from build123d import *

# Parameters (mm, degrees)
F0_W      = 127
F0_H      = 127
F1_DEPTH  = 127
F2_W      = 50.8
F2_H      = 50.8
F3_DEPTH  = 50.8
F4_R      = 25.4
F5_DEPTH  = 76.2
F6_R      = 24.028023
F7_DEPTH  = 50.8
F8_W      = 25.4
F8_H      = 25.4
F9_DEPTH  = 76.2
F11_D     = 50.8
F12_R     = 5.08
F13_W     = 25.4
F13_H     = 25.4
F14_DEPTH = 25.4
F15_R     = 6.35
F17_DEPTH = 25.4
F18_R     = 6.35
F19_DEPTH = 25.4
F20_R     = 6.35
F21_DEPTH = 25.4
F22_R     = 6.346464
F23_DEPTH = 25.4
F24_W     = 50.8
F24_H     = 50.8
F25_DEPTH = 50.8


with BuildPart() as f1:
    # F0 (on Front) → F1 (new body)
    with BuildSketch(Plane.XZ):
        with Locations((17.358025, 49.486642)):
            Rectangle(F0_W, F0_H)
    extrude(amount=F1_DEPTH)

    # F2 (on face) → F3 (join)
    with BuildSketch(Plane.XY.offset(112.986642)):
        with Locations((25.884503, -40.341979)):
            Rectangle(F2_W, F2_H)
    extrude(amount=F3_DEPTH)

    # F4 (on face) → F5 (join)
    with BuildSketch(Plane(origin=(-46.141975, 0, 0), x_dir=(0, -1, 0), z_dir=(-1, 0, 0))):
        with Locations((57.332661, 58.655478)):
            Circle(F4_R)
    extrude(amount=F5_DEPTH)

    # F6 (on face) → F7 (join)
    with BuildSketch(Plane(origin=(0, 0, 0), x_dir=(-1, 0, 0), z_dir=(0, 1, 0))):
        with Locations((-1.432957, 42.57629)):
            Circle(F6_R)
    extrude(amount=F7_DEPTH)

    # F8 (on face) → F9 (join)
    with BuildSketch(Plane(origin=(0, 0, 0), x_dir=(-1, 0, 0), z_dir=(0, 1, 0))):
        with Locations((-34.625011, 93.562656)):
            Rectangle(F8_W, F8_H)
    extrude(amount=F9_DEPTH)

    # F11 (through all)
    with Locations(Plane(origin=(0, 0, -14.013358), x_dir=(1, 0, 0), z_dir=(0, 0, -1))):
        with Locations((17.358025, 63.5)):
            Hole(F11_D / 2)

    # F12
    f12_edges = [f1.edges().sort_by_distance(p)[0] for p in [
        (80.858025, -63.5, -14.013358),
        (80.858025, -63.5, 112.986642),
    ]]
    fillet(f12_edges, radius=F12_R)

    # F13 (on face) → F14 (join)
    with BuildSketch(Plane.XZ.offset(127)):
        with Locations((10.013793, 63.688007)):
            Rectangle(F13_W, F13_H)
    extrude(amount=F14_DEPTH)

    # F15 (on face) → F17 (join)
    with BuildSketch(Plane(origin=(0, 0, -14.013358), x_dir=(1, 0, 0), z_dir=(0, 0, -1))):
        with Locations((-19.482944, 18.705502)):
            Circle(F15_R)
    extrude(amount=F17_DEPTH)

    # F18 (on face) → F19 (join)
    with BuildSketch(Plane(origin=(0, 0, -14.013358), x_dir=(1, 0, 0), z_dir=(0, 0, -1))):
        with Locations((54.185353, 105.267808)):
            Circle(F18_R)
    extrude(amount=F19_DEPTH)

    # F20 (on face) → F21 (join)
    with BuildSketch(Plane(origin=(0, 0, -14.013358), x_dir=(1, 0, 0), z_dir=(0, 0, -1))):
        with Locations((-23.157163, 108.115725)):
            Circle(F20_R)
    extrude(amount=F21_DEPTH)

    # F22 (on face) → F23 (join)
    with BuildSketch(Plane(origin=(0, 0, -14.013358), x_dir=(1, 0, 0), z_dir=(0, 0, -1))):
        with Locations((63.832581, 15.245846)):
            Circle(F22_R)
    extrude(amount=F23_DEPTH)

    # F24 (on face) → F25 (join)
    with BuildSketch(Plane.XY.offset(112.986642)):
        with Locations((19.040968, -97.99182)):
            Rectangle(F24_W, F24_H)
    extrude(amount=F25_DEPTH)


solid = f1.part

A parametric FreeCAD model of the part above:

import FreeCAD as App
import Part
import Sketcher

V = App.Vector
Q = App.Units.Quantity


def edges_at(feature, points):
    """Names of the edges that pass closest to the given points."""
    edges = feature.Shape.Edges
    near = lambda p: min(range(len(edges)), key=lambda i: edges[i].distToShape(Part.Vertex(*p))[0])
    return sorted({f"Edge{near(p) + 1}" for p in points})


def add_polygon(sketch, points):
    """Adds a closed chain of lines whose ends are joined by coincident constraints."""
    first, n = sketch.GeometryCount, len(points)
    for a, b in zip(points, points[1:] + points[:1]):
        sketch.addGeometry(Part.LineSegment(App.Vector(*a, 0), App.Vector(*b, 0)), False)
    for i in range(n):
        sketch.addConstraint(Sketcher.Constraint("Coincident", first + i, 2, first + (i + 1) % n, 1))

doc = App.newDocument("Part")
params = doc.addObject("Spreadsheet::Sheet", "Params")
for row, (alias, value) in enumerate([
    ("sketch1_width", "5 in"),
    ("pad1_length", "5 in"),
    ("sketch2_width", "2 in"),
    ("pad2_length", "2 in"),
    ("sketch3_diameter", "2 in"),
    ("pad3_length", "3 in"),
    ("pad4_length", "2 in"),
    ("sketch5_width", "1 in"),
    ("pad5_length", "3 in"),
    ("sketch6_diameter", "2 in"),
    ("hole_diameter", "2 in"),
    ("fillet_radius", "0.2 in"),
    ("sketch7_width", "1 in"),
    ("pad6_length", "1 in"),
    ("sketch8_diameter", "0.5 in"),
    ("pad7_length", "1 in"),
    ("sketch9_diameter", "0.5 in"),
    ("pad8_length", "1 in"),
    ("sketch10_diameter", "0.5 in"),
    ("pad9_length", "1 in"),
    ("pad10_length", "1 in"),
    ("sketch12_width", "2 in"),
    ("pad11_length", "2 in"),
], start=1):
    params.set(f"A{row}", alias)
    params.set(f"B{row}", "=" + value)
    params.setAlias(f"B{row}", alias)

body = doc.addObject("PartDesign::Body", "Body")

sketch1 = body.newObject("Sketcher::SketchObject", "Sketch")
sketch1.AttachmentSupport = (doc.getObject("XZ_Plane"), [""])
sketch1.MapMode = "FlatFace"
add_polygon(sketch1, [(-46, 113), (-46, -14), (81, -14), (81, 113)])
sketch1.addConstraint(Sketcher.Constraint("Vertical", 0))
sketch1.addConstraint(Sketcher.Constraint("Horizontal", 1))
sketch1.addConstraint(Sketcher.Constraint("Vertical", 2))
sketch1.addConstraint(Sketcher.Constraint("Horizontal", 3))
sketch1.addConstraint(Sketcher.Constraint("Equal", 3, 0))
sketch1.addConstraint(Sketcher.Constraint("DistanceX", 1, 1, 1, 2, Q("5 in")))
sketch1.addConstraint(Sketcher.Constraint("DistanceX", 0, 2, -1, 1, 46.141975))
sketch1.addConstraint(Sketcher.Constraint("DistanceY", 0, 2, -1, 1, 14.013358))
sketch1.setExpression("Constraints[9]", "Params.sketch1_width")
pad1 = body.newObject("PartDesign::Pad", "Pad")
pad1.Profile = sketch1
pad1.setExpression("Length", "Params.pad1_length")

sketch2 = body.newObject("Sketcher::SketchObject", "Sketch001")
sketch2.AttachmentSupport = (doc.getObject("XY_Plane"), [""])
sketch2.MapMode = "FlatFace"
sketch2.AttachmentOffset = App.Placement(V(0, 0, 112.986642), App.Rotation())
add_polygon(sketch2, [(0, -15), (0, -66), (51, -66), (51, -15)])
sketch2.addConstraint(Sketcher.Constraint("Vertical", 0))
sketch2.addConstraint(Sketcher.Constraint("Horizontal", 1))
sketch2.addConstraint(Sketcher.Constraint("Vertical", 2))
sketch2.addConstraint(Sketcher.Constraint("Horizontal", 3))
sketch2.addConstraint(Sketcher.Constraint("Equal", 3, 0))
sketch2.addConstraint(Sketcher.Constraint("DistanceX", 1, 1, 1, 2, Q("2 in")))
sketch2.addConstraint(Sketcher.Constraint("DistanceY", 0, 2, -1, 1, 65.741979))
sketch2.addConstraint(Sketcher.Constraint("DistanceX", -1, 1, 0, 2, 0.484503))
sketch2.setExpression("Constraints[9]", "Params.sketch2_width")
pad2 = body.newObject("PartDesign::Pad", "Pad001")
pad2.Profile = sketch2
pad2.setExpression("Length", "Params.pad2_length")

sketch3 = body.newObject("Sketcher::SketchObject", "Sketch002")
sketch3.AttachmentSupport = (doc.getObject("YZ_Plane"), [""])
sketch3.MapMode = "FlatFace"
sketch3.AttachmentOffset = App.Placement(V(0, 0, -46.141975), App.Rotation())
sketch3.addGeometry(Part.Circle(V(-57, 59, 0), V(0, 0, 1), 25), False)
sketch3.addConstraint(Sketcher.Constraint("Diameter", 0, Q("2 in")))
sketch3.addConstraint(Sketcher.Constraint("DistanceX", 0, 3, -1, 1, 57.332661))
sketch3.addConstraint(Sketcher.Constraint("DistanceY", -1, 1, 0, 3, 58.655478))
sketch3.setExpression("Constraints[0]", "Params.sketch3_diameter")
pad3 = body.newObject("PartDesign::Pad", "Pad002")
pad3.Profile = sketch3
pad3.setExpression("Length", "Params.pad3_length")
pad3.Reversed = True

sketch4 = body.newObject("Sketcher::SketchObject", "Sketch003")
sketch4.AttachmentSupport = (doc.getObject("XZ_Plane"), [""])
sketch4.MapMode = "FlatFace"
sketch4.addGeometry(Part.Circle(V(1, 43, 0), V(0, 0, 1), 24), False)
sketch4.addConstraint(Sketcher.Constraint("Diameter", 0, 48.056046))
sketch4.addConstraint(Sketcher.Constraint("DistanceY", -1, 1, 0, 3, 42.57629))
sketch4.addConstraint(Sketcher.Constraint("DistanceX", -1, 1, 0, 3, 1.432957))
pad4 = body.newObject("PartDesign::Pad", "Pad003")
pad4.Profile = sketch4
pad4.setExpression("Length", "Params.pad4_length")
pad4.Reversed = True

sketch5 = body.newObject("Sketcher::SketchObject", "Sketch004")
sketch5.AttachmentSupport = (doc.getObject("XZ_Plane"), [""])
sketch5.MapMode = "FlatFace"
add_polygon(sketch5, [(47, 106), (47, 81), (22, 81), (22, 106)])
sketch5.addConstraint(Sketcher.Constraint("Vertical", 0))
sketch5.addConstraint(Sketcher.Constraint("Horizontal", 1))
sketch5.addConstraint(Sketcher.Constraint("Vertical", 2))
sketch5.addConstraint(Sketcher.Constraint("Horizontal", 3))
sketch5.addConstraint(Sketcher.Constraint("Equal", 3, 0))
sketch5.addConstraint(Sketcher.Constraint("DistanceX", 1, 2, 1, 1, Q("1 in")))
sketch5.addConstraint(Sketcher.Constraint("DistanceX", -1, 1, 0, 2, 47.325011))
sketch5.addConstraint(Sketcher.Constraint("DistanceY", -1, 1, 0, 2, 80.862656))
sketch5.setExpression("Constraints[9]", "Params.sketch5_width")
pad5 = body.newObject("PartDesign::Pad", "Pad004")
pad5.Profile = sketch5
pad5.setExpression("Length", "Params.pad5_length")
pad5.Reversed = True

sketch6 = body.newObject("Sketcher::SketchObject", "Sketch005")
sketch6.AttachmentSupport = (doc.getObject("XY_Plane"), [""])
sketch6.MapMode = "FlatFace"
sketch6.AttachmentOffset = App.Placement(V(0, 0, -14.013358), App.Rotation())
sketch6.addGeometry(Part.Circle(V(17, -64, 0), V(0, 0, 1), 25), False)
sketch6.addConstraint(Sketcher.Constraint("Diameter", 0, Q("2 in")))
sketch6.addConstraint(Sketcher.Constraint("DistanceY", 0, 3, -1, 1, Q("2.5 in")))
sketch6.addConstraint(Sketcher.Constraint("DistanceX", -1, 1, 0, 3, 17.358025))
sketch6.setExpression("Constraints[0]", "Params.sketch6_diameter")
doc.recompute()
hole = body.newObject("PartDesign::Hole", "Hole")
hole.Profile = sketch6
hole.ThreadType = "None"
hole.setExpression("Diameter", "Params.hole_diameter")
hole.DepthType = "ThroughAll"
hole.Reversed = True
doc.recompute()

fillet = body.newObject("PartDesign::Fillet", "Fillet")
fillet.Base = (hole, edges_at(hole, [(80.858, -63.5, -14.013), (80.858, -63.5, 112.987)]))
fillet.setExpression("Radius", "Params.fillet_radius")

sketch7 = body.newObject("Sketcher::SketchObject", "Sketch006")
sketch7.AttachmentSupport = (doc.getObject("XZ_Plane"), [""])
sketch7.MapMode = "FlatFace"
sketch7.AttachmentOffset = App.Placement(V(0, 0, 5 * 25.4), App.Rotation())
add_polygon(sketch7, [(-3, 76), (-3, 51), (23, 51), (23, 76)])
sketch7.addConstraint(Sketcher.Constraint("Vertical", 0))
sketch7.addConstraint(Sketcher.Constraint("Horizontal", 1))
sketch7.addConstraint(Sketcher.Constraint("Vertical", 2))
sketch7.addConstraint(Sketcher.Constraint("Horizontal", 3))
sketch7.addConstraint(Sketcher.Constraint("Equal", 3, 0))
sketch7.addConstraint(Sketcher.Constraint("DistanceX", 1, 1, 1, 2, Q("1 in")))
sketch7.addConstraint(Sketcher.Constraint("DistanceX", 0, 2, -1, 1, 2.686207))
sketch7.addConstraint(Sketcher.Constraint("DistanceY", -1, 1, 0, 2, 50.988007))
sketch7.setExpression("Constraints[9]", "Params.sketch7_width")
pad6 = body.newObject("PartDesign::Pad", "Pad005")
pad6.Profile = sketch7
pad6.setExpression("Length", "Params.pad6_length")

sketch8 = body.newObject("Sketcher::SketchObject", "Sketch007")
sketch8.AttachmentSupport = (doc.getObject("XY_Plane"), [""])
sketch8.MapMode = "FlatFace"
sketch8.AttachmentOffset = App.Placement(V(0, 0, -14.013358), App.Rotation())
sketch8.addGeometry(Part.Circle(V(-19, -19, 0), V(0, 0, 1), 6), False)
sketch8.addConstraint(Sketcher.Constraint("Diameter", 0, Q("0.5 in")))
sketch8.addConstraint(Sketcher.Constraint("DistanceY", 0, 3, -1, 1, 18.705502))
sketch8.addConstraint(Sketcher.Constraint("DistanceX", 0, 3, -1, 1, 19.482944))
sketch8.setExpression("Constraints[0]", "Params.sketch8_diameter")
pad7 = body.newObject("PartDesign::Pad", "Pad006")
pad7.Profile = sketch8
pad7.setExpression("Length", "Params.pad7_length")
pad7.Reversed = True

sketch9 = body.newObject("Sketcher::SketchObject", "Sketch008")
sketch9.AttachmentSupport = (doc.getObject("XY_Plane"), [""])
sketch9.MapMode = "FlatFace"
sketch9.AttachmentOffset = App.Placement(V(0, 0, -14.013358), App.Rotation())
sketch9.addGeometry(Part.Circle(V(54, -105, 0), V(0, 0, 1), 6), False)
sketch9.addConstraint(Sketcher.Constraint("Diameter", 0, Q("0.5 in")))
sketch9.addConstraint(Sketcher.Constraint("DistanceY", 0, 3, -1, 1, 105.267808))
sketch9.addConstraint(Sketcher.Constraint("DistanceX", -1, 1, 0, 3, 54.185353))
sketch9.setExpression("Constraints[0]", "Params.sketch9_diameter")
pad8 = body.newObject("PartDesign::Pad", "Pad007")
pad8.Profile = sketch9
pad8.setExpression("Length", "Params.pad8_length")
pad8.Reversed = True

sketch10 = body.newObject("Sketcher::SketchObject", "Sketch009")
sketch10.AttachmentSupport = (doc.getObject("XY_Plane"), [""])
sketch10.MapMode = "FlatFace"
sketch10.AttachmentOffset = App.Placement(V(0, 0, -14.013358), App.Rotation())
sketch10.addGeometry(Part.Circle(V(-23, -108, 0), V(0, 0, 1), 6), False)
sketch10.addConstraint(Sketcher.Constraint("Diameter", 0, Q("0.5 in")))
sketch10.addConstraint(Sketcher.Constraint("DistanceX", 0, 3, -1, 1, 23.157163))
sketch10.addConstraint(Sketcher.Constraint("DistanceY", 0, 3, -1, 1, 108.115725))
sketch10.setExpression("Constraints[0]", "Params.sketch10_diameter")
pad9 = body.newObject("PartDesign::Pad", "Pad008")
pad9.Profile = sketch10
pad9.setExpression("Length", "Params.pad9_length")
pad9.Reversed = True

sketch11 = body.newObject("Sketcher::SketchObject", "Sketch010")
sketch11.AttachmentSupport = (doc.getObject("XY_Plane"), [""])
sketch11.MapMode = "FlatFace"
sketch11.AttachmentOffset = App.Placement(V(0, 0, -14.013358), App.Rotation())
sketch11.addGeometry(Part.Circle(V(64, -15, 0), V(0, 0, 1), 6), False)
sketch11.addConstraint(Sketcher.Constraint("Diameter", 0, 12.692928))
sketch11.addConstraint(Sketcher.Constraint("DistanceX", -1, 1, 0, 3, 63.832581))
sketch11.addConstraint(Sketcher.Constraint("DistanceY", 0, 3, -1, 1, 15.245846))
pad10 = body.newObject("PartDesign::Pad", "Pad009")
pad10.Profile = sketch11
pad10.setExpression("Length", "Params.pad10_length")
pad10.Reversed = True

sketch12 = body.newObject("Sketcher::SketchObject", "Sketch011")
sketch12.AttachmentSupport = (doc.getObject("XY_Plane"), [""])
sketch12.MapMode = "FlatFace"
sketch12.AttachmentOffset = App.Placement(V(0, 0, 112.986642), App.Rotation())
add_polygon(sketch12, [(-6, -73), (-6, -123), (44, -123), (44, -73)])
sketch12.addConstraint(Sketcher.Constraint("Vertical", 0))
sketch12.addConstraint(Sketcher.Constraint("Horizontal", 1))
sketch12.addConstraint(Sketcher.Constraint("Vertical", 2))
sketch12.addConstraint(Sketcher.Constraint("Horizontal", 3))
sketch12.addConstraint(Sketcher.Constraint("Equal", 3, 0))
sketch12.addConstraint(Sketcher.Constraint("DistanceX", 1, 1, 1, 2, Q("2 in")))
sketch12.addConstraint(Sketcher.Constraint("DistanceY", 0, 2, -1, 1, 123.39182))
sketch12.addConstraint(Sketcher.Constraint("DistanceX", 0, 2, -1, 1, 6.359032))
sketch12.setExpression("Constraints[9]", "Params.sketch12_width")
pad11 = body.newObject("PartDesign::Pad", "Pad010")
pad11.Profile = sketch12
pad11.setExpression("Length", "Params.pad11_length")

doc.recompute()
